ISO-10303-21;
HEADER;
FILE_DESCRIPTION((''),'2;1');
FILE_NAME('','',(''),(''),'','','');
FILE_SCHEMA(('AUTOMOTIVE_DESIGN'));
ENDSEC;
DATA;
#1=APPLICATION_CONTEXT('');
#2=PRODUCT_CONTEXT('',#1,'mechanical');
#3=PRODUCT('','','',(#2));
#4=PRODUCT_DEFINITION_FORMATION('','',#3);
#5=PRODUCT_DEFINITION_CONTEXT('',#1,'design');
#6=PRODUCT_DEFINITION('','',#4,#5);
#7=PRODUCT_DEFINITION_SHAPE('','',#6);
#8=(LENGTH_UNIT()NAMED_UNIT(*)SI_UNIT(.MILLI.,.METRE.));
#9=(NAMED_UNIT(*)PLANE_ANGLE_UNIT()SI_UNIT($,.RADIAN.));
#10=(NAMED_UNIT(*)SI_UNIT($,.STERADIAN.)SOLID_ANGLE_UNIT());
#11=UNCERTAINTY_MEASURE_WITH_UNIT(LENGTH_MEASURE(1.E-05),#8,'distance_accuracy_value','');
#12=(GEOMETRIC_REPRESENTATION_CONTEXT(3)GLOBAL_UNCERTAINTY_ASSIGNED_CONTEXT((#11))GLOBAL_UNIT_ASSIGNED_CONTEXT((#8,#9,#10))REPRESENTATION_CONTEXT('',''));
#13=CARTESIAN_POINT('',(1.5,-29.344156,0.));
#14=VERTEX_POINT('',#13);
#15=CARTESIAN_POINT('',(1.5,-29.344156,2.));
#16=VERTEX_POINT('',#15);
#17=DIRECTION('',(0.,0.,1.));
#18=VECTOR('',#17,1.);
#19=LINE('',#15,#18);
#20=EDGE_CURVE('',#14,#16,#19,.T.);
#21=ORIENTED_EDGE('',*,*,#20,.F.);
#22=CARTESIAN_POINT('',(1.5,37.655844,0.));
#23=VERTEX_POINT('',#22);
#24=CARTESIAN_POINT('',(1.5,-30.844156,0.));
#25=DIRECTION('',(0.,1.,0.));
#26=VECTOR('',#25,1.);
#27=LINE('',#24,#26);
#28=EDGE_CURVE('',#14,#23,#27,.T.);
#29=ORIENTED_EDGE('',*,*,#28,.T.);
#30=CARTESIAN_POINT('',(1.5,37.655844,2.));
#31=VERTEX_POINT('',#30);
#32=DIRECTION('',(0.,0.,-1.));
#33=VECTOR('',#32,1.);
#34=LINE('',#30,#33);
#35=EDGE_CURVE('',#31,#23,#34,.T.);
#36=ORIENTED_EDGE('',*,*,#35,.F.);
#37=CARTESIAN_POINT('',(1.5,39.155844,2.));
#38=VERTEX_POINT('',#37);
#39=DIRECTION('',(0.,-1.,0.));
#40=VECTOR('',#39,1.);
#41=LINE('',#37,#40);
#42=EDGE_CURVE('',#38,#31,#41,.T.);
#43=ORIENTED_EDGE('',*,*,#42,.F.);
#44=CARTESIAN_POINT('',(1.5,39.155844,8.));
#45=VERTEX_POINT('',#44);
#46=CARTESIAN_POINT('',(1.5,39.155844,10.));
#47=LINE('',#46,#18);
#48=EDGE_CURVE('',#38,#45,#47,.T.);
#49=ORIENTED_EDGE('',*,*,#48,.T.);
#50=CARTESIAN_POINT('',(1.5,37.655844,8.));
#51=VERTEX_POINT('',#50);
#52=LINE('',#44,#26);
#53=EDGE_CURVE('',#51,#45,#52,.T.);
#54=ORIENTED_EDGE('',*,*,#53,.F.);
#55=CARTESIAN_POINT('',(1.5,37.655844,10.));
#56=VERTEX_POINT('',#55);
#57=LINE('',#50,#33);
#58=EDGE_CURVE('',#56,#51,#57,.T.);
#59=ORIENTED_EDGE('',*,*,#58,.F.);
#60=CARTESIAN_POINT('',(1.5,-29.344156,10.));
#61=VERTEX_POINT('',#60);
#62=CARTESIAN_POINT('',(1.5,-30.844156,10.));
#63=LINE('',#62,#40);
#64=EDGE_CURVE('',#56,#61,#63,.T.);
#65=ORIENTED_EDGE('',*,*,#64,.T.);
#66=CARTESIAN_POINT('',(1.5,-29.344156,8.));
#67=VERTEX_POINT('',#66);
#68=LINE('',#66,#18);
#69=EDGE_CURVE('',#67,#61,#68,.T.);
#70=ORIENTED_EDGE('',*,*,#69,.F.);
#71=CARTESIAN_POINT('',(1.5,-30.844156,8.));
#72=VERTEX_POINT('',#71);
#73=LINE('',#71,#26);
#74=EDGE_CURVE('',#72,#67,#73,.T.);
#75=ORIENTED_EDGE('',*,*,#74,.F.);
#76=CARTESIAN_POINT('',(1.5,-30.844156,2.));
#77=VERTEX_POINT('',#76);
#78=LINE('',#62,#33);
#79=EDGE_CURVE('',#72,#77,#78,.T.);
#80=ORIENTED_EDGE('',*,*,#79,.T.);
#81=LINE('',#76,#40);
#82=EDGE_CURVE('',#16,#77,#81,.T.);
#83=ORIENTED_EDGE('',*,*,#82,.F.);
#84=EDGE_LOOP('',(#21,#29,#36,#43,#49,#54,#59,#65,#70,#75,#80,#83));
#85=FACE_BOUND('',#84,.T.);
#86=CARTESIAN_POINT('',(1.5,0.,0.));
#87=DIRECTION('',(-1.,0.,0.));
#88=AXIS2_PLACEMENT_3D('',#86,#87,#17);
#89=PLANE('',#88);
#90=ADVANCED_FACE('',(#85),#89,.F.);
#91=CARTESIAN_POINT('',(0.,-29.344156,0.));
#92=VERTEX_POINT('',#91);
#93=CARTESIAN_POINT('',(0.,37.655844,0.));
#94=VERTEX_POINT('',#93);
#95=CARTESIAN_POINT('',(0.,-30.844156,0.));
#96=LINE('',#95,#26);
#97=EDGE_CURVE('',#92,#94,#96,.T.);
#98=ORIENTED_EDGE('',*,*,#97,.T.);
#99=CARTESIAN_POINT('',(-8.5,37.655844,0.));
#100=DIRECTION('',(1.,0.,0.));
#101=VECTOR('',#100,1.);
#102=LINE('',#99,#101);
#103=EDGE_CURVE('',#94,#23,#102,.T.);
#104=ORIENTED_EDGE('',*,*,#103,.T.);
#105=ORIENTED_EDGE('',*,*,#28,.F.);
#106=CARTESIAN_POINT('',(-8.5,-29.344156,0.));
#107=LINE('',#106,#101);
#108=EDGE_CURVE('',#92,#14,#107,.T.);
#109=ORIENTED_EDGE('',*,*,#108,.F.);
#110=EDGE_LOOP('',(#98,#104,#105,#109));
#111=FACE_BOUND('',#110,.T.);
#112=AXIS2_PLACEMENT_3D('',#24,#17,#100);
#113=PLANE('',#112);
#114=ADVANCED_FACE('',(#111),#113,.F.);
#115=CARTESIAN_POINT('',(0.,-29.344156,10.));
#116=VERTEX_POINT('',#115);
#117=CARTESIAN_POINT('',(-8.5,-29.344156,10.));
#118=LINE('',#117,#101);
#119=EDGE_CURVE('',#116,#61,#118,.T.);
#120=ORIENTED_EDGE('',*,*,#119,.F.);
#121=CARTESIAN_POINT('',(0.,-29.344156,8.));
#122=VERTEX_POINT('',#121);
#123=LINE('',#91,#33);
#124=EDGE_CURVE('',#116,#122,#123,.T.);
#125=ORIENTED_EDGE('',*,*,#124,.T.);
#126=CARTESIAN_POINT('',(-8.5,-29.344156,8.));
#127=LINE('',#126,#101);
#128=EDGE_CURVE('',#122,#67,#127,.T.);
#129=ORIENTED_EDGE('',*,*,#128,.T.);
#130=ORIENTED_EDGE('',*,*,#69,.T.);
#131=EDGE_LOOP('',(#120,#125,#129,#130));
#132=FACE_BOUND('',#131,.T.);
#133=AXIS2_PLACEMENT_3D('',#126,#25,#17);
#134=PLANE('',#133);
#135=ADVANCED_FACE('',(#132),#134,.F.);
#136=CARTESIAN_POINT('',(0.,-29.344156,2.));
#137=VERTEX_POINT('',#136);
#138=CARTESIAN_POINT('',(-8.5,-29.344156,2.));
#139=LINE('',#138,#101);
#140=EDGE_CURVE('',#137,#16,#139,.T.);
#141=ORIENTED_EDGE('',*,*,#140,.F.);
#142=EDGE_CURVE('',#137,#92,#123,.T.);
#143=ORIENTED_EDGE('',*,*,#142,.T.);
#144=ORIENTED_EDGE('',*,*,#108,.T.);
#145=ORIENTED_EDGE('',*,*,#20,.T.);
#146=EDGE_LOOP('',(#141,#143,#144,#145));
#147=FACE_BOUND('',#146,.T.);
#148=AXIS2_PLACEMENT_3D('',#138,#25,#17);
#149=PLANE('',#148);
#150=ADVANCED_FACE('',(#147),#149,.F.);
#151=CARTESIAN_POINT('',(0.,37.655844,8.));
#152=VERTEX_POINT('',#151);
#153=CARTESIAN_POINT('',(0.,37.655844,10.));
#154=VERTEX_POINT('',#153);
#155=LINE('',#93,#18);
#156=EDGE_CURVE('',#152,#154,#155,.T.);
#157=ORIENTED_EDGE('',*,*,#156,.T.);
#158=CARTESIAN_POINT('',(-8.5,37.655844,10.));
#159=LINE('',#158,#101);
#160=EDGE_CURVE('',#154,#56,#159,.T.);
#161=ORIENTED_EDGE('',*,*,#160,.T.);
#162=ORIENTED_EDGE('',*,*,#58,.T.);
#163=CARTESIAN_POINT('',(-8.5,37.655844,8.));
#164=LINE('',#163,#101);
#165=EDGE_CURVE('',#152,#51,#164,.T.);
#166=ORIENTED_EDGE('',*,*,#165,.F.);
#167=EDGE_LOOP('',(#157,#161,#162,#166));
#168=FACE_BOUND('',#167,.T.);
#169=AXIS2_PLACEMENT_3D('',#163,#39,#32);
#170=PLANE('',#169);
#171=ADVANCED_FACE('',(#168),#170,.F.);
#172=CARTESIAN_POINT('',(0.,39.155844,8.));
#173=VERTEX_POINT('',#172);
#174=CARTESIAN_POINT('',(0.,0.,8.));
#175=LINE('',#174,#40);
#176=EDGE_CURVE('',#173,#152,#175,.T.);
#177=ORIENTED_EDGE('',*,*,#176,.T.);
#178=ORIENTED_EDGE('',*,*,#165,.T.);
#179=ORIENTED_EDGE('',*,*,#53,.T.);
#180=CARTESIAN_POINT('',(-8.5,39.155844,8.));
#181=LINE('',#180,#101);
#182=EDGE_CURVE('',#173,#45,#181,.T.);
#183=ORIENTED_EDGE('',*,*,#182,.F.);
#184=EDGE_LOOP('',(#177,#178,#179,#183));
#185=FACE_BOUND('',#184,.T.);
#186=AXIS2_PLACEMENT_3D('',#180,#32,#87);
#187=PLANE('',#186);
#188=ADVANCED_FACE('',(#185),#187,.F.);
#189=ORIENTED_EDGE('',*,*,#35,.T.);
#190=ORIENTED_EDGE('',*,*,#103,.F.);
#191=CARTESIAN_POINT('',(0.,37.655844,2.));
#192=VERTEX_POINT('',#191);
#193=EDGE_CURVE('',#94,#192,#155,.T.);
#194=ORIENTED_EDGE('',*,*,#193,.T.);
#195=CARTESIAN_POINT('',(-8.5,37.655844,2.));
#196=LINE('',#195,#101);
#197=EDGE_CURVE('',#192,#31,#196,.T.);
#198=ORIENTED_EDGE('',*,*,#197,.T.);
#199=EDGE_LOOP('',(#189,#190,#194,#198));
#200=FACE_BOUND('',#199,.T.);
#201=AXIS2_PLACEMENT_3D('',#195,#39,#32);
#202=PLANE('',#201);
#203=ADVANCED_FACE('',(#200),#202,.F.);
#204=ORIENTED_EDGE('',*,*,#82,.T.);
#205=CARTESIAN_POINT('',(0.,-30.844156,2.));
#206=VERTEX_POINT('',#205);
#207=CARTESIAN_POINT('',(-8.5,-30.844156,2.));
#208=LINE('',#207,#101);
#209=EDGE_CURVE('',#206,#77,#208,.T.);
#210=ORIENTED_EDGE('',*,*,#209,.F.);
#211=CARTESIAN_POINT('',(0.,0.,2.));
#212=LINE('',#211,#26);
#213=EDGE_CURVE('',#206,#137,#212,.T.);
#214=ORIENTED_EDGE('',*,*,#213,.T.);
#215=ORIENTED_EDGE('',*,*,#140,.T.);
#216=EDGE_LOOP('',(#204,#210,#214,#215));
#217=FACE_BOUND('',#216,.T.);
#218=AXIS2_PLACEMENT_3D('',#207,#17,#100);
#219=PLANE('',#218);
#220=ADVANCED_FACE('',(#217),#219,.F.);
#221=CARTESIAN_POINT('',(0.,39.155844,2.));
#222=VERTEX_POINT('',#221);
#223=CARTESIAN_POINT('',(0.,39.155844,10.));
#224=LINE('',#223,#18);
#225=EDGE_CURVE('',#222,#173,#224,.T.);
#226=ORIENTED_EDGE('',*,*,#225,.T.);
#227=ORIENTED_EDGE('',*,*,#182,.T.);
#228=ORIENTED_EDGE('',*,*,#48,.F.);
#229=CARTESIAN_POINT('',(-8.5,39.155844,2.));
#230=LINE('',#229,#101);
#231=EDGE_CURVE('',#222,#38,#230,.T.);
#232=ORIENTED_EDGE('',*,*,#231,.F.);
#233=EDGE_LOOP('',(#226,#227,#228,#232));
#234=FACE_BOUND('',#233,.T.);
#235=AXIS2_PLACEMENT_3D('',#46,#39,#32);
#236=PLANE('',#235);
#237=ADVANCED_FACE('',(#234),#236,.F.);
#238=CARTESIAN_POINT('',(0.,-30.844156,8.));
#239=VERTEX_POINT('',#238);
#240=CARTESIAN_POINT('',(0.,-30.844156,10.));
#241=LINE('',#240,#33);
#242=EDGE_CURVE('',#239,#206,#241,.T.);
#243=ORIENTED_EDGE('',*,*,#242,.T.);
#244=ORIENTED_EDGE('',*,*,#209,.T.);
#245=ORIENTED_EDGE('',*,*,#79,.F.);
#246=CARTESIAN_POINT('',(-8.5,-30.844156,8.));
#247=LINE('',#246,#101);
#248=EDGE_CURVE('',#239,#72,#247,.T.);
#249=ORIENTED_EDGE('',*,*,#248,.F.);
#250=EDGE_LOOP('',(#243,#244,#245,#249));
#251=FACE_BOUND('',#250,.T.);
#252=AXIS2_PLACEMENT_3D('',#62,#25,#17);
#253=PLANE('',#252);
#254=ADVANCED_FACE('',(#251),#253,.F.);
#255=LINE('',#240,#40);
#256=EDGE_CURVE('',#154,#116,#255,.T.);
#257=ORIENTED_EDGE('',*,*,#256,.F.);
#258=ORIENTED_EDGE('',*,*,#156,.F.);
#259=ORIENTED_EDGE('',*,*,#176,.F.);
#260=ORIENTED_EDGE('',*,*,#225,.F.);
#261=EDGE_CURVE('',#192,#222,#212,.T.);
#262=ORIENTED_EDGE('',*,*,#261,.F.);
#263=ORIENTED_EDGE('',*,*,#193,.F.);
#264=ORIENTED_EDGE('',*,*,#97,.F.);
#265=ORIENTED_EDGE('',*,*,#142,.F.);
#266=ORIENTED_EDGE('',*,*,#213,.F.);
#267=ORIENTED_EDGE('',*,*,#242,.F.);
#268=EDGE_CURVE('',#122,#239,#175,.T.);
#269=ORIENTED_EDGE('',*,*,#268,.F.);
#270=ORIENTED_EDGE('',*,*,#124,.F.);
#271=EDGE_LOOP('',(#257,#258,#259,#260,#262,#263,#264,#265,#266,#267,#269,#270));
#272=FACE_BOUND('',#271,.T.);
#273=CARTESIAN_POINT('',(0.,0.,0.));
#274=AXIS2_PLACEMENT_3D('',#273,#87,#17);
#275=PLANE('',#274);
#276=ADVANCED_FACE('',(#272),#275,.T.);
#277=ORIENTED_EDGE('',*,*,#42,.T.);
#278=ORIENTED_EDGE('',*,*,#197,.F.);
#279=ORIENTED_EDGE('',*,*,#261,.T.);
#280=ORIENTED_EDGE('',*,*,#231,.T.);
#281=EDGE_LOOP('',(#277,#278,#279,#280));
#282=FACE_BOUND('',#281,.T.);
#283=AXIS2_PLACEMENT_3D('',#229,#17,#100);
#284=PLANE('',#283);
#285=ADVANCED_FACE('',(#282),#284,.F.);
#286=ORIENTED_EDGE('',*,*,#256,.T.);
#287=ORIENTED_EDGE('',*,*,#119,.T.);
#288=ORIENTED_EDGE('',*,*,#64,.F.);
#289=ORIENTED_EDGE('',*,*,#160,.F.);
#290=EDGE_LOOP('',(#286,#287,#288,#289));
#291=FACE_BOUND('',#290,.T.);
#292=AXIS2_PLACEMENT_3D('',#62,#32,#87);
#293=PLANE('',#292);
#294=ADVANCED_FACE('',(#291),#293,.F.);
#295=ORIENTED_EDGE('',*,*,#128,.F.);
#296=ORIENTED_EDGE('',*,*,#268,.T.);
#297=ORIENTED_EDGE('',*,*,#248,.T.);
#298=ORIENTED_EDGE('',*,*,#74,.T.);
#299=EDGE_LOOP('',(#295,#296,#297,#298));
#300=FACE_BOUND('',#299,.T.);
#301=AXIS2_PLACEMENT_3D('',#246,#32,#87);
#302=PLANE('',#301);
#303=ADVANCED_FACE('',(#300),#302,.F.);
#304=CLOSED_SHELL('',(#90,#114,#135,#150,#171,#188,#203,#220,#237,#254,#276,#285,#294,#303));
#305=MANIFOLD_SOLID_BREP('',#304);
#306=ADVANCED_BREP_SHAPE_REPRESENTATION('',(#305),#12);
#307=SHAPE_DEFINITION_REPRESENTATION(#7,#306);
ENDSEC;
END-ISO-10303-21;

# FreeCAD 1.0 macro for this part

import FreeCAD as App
import Part
import Sketcher
from FreeCAD import Vector
Q = App.Units.Quantity


def add_polygon(sketch, points):
    """Adds a closed chain of lines whose ends are joined by coincident constraints."""
    first, n = sketch.GeometryCount, len(points)
    for a, b in zip(points, points[1:] + points[:1]):
        sketch.addGeometry(Part.LineSegment(App.Vector(*a, 0), App.Vector(*b, 0)), False)
    for i in range(n):
        sketch.addConstraint(Sketcher.Constraint("Coincident", first + i, 2, first + (i + 1) % n, 1))

doc = App.newDocument("Part")
body = doc.addObject("PartDesign::Body", "Body")

sketch1 = body.newObject("Sketcher::SketchObject", "Sketch")
sketch1.AttachmentSupport = (doc.getObject("YZ_Plane"), [""])
sketch1.MapMode = "FlatFace"
add_polygon(sketch1, [(39, 10), (-31, 10), (-31, 0), (39, 0)])
sketch1.addConstraint(Sketcher.Constraint("Horizontal", 0))
sketch1.addConstraint(Sketcher.Constraint("Vertical", 1))
sketch1.addConstraint(Sketcher.Constraint("Horizontal", 2))
sketch1.addConstraint(Sketcher.Constraint("Vertical", 3))
sketch1.addConstraint(Sketcher.Constraint("PointOnObject", 1, 2, -1))
sketch1.addConstraint(Sketcher.Constraint("DistanceX", 0, 2, 0, 1, Q("70 mm")))
sketch1.addConstraint(Sketcher.Constraint("DistanceY", 1, 2, 1, 1, Q("10 mm")))
sketch1.addConstraint(Sketcher.Constraint("DistanceX", 0, 2, -1, 1, Q("30.844156 mm")))
pad1 = body.newObject("PartDesign::Pad", "Pad")
pad1.Profile = sketch1
pad1.Length = 1.5

sketch2 = body.newObject("Sketcher::SketchObject", "Sketch001")
sketch2.AttachmentSupport = (doc.getObject("YZ_Plane"), [""])
sketch2.MapMode = "FlatFace"
sketch2.AttachmentOffset = App.Placement(Vector(0, 0, 1.5), App.Rotation())
add_polygon(sketch2, [(39.2, 10), (37.7, 10), (37.7, 8), (39.2, 8)])
add_polygon(sketch2, [(39.2, 2), (37.7, 2), (37.7, 0), (39.2, 0)])
add_polygon(sketch2, [(-29.3, 2), (-30.8, 2), (-30.8, 0), (-29.3, 0)])
add_polygon(sketch2, [(-29.3, 10), (-30.8, 10), (-30.8, 8), (-29.3, 8)])
sketch2.addConstraint(Sketcher.Constraint("Horizontal", 0))
sketch2.addConstraint(Sketcher.Constraint("Vertical", 1))
sketch2.addConstraint(Sketcher.Constraint("Horizontal", 2))
sketch2.addConstraint(Sketcher.Constraint("Vertical", 3))
sketch2.addConstraint(Sketcher.Constraint("Horizontal", 4))
sketch2.addConstraint(Sketcher.Constraint("Vertical", 5))
sketch2.addConstraint(Sketcher.Constraint("Horizontal", 6))
sketch2.addConstraint(Sketcher.Constraint("Vertical", 7))
sketch2.addConstraint(Sketcher.Constraint("Horizontal", 8))
sketch2.addConstraint(Sketcher.Constraint("Vertical", 9))
sketch2.addConstraint(Sketcher.Constraint("Horizontal", 10))
sketch2.addConstraint(Sketcher.Constraint("Vertical", 11))
sketch2.addConstraint(Sketcher.Constraint("Horizontal", 12))
sketch2.addConstraint(Sketcher.Constraint("Vertical", 13))
sketch2.addConstraint(Sketcher.Constraint("Horizontal", 14))
sketch2.addConstraint(Sketcher.Constraint("Vertical", 15))
sketch2.addConstraint(Sketcher.Constraint("PointOnObject", 5, 2, -1))
sketch2.addConstraint(Sketcher.Constraint("PointOnObject", 9, 2, -1))
sketch2.addConstraint(Sketcher.Constraint("Horizontal", 7, 2, 8, 2))
sketch2.addConstraint(Sketcher.Constraint("Horizontal", 3, 2, 12, 2))
sketch2.addConstraint(Sketcher.Constraint("Horizontal", 2, 2, 13, 2))
sketch2.addConstraint(Sketcher.Constraint("Vertical", 1, 2, 4, 2))
sketch2.addConstraint(Sketcher.Constraint("Vertical", 3, 2, 6, 2))
sketch2.addConstraint(Sketcher.Constraint("Vertical", 9, 2, 12, 2))
sketch2.addConstraint(Sketcher.Constraint("Vertical", 11, 2, 14, 2))
sketch2.addConstraint(Sketcher.Constraint("Equal", 6, 8))
sketch2.addConstraint(Sketcher.Constraint("Equal", 3, 5))
sketch2.addConstraint(Sketcher.Constraint("DistanceY", 1, 2, 1, 1, Q("2 mm")))
sketch2.addConstraint(Sketcher.Constraint("DistanceX", 0, 2, 0, 1, Q("1.5 mm")))
sketch2.addConstraint(Sketcher.Constraint("DistanceY", -1, 1, 0, 2, Q("10 mm")))
sketch2.addConstraint(Sketcher.Constraint("DistanceX", 8, 2, 7, 2, Q("70 mm")))
sketch2.addConstraint(Sketcher.Constraint("DistanceX", -1, 1, 0, 2, Q("37.655844 mm")))
pocket1 = body.newObject("PartDesign::Pocket", "Pocket")
pocket1.Profile = sketch2
pocket1.Length = 10

doc.recompute()
